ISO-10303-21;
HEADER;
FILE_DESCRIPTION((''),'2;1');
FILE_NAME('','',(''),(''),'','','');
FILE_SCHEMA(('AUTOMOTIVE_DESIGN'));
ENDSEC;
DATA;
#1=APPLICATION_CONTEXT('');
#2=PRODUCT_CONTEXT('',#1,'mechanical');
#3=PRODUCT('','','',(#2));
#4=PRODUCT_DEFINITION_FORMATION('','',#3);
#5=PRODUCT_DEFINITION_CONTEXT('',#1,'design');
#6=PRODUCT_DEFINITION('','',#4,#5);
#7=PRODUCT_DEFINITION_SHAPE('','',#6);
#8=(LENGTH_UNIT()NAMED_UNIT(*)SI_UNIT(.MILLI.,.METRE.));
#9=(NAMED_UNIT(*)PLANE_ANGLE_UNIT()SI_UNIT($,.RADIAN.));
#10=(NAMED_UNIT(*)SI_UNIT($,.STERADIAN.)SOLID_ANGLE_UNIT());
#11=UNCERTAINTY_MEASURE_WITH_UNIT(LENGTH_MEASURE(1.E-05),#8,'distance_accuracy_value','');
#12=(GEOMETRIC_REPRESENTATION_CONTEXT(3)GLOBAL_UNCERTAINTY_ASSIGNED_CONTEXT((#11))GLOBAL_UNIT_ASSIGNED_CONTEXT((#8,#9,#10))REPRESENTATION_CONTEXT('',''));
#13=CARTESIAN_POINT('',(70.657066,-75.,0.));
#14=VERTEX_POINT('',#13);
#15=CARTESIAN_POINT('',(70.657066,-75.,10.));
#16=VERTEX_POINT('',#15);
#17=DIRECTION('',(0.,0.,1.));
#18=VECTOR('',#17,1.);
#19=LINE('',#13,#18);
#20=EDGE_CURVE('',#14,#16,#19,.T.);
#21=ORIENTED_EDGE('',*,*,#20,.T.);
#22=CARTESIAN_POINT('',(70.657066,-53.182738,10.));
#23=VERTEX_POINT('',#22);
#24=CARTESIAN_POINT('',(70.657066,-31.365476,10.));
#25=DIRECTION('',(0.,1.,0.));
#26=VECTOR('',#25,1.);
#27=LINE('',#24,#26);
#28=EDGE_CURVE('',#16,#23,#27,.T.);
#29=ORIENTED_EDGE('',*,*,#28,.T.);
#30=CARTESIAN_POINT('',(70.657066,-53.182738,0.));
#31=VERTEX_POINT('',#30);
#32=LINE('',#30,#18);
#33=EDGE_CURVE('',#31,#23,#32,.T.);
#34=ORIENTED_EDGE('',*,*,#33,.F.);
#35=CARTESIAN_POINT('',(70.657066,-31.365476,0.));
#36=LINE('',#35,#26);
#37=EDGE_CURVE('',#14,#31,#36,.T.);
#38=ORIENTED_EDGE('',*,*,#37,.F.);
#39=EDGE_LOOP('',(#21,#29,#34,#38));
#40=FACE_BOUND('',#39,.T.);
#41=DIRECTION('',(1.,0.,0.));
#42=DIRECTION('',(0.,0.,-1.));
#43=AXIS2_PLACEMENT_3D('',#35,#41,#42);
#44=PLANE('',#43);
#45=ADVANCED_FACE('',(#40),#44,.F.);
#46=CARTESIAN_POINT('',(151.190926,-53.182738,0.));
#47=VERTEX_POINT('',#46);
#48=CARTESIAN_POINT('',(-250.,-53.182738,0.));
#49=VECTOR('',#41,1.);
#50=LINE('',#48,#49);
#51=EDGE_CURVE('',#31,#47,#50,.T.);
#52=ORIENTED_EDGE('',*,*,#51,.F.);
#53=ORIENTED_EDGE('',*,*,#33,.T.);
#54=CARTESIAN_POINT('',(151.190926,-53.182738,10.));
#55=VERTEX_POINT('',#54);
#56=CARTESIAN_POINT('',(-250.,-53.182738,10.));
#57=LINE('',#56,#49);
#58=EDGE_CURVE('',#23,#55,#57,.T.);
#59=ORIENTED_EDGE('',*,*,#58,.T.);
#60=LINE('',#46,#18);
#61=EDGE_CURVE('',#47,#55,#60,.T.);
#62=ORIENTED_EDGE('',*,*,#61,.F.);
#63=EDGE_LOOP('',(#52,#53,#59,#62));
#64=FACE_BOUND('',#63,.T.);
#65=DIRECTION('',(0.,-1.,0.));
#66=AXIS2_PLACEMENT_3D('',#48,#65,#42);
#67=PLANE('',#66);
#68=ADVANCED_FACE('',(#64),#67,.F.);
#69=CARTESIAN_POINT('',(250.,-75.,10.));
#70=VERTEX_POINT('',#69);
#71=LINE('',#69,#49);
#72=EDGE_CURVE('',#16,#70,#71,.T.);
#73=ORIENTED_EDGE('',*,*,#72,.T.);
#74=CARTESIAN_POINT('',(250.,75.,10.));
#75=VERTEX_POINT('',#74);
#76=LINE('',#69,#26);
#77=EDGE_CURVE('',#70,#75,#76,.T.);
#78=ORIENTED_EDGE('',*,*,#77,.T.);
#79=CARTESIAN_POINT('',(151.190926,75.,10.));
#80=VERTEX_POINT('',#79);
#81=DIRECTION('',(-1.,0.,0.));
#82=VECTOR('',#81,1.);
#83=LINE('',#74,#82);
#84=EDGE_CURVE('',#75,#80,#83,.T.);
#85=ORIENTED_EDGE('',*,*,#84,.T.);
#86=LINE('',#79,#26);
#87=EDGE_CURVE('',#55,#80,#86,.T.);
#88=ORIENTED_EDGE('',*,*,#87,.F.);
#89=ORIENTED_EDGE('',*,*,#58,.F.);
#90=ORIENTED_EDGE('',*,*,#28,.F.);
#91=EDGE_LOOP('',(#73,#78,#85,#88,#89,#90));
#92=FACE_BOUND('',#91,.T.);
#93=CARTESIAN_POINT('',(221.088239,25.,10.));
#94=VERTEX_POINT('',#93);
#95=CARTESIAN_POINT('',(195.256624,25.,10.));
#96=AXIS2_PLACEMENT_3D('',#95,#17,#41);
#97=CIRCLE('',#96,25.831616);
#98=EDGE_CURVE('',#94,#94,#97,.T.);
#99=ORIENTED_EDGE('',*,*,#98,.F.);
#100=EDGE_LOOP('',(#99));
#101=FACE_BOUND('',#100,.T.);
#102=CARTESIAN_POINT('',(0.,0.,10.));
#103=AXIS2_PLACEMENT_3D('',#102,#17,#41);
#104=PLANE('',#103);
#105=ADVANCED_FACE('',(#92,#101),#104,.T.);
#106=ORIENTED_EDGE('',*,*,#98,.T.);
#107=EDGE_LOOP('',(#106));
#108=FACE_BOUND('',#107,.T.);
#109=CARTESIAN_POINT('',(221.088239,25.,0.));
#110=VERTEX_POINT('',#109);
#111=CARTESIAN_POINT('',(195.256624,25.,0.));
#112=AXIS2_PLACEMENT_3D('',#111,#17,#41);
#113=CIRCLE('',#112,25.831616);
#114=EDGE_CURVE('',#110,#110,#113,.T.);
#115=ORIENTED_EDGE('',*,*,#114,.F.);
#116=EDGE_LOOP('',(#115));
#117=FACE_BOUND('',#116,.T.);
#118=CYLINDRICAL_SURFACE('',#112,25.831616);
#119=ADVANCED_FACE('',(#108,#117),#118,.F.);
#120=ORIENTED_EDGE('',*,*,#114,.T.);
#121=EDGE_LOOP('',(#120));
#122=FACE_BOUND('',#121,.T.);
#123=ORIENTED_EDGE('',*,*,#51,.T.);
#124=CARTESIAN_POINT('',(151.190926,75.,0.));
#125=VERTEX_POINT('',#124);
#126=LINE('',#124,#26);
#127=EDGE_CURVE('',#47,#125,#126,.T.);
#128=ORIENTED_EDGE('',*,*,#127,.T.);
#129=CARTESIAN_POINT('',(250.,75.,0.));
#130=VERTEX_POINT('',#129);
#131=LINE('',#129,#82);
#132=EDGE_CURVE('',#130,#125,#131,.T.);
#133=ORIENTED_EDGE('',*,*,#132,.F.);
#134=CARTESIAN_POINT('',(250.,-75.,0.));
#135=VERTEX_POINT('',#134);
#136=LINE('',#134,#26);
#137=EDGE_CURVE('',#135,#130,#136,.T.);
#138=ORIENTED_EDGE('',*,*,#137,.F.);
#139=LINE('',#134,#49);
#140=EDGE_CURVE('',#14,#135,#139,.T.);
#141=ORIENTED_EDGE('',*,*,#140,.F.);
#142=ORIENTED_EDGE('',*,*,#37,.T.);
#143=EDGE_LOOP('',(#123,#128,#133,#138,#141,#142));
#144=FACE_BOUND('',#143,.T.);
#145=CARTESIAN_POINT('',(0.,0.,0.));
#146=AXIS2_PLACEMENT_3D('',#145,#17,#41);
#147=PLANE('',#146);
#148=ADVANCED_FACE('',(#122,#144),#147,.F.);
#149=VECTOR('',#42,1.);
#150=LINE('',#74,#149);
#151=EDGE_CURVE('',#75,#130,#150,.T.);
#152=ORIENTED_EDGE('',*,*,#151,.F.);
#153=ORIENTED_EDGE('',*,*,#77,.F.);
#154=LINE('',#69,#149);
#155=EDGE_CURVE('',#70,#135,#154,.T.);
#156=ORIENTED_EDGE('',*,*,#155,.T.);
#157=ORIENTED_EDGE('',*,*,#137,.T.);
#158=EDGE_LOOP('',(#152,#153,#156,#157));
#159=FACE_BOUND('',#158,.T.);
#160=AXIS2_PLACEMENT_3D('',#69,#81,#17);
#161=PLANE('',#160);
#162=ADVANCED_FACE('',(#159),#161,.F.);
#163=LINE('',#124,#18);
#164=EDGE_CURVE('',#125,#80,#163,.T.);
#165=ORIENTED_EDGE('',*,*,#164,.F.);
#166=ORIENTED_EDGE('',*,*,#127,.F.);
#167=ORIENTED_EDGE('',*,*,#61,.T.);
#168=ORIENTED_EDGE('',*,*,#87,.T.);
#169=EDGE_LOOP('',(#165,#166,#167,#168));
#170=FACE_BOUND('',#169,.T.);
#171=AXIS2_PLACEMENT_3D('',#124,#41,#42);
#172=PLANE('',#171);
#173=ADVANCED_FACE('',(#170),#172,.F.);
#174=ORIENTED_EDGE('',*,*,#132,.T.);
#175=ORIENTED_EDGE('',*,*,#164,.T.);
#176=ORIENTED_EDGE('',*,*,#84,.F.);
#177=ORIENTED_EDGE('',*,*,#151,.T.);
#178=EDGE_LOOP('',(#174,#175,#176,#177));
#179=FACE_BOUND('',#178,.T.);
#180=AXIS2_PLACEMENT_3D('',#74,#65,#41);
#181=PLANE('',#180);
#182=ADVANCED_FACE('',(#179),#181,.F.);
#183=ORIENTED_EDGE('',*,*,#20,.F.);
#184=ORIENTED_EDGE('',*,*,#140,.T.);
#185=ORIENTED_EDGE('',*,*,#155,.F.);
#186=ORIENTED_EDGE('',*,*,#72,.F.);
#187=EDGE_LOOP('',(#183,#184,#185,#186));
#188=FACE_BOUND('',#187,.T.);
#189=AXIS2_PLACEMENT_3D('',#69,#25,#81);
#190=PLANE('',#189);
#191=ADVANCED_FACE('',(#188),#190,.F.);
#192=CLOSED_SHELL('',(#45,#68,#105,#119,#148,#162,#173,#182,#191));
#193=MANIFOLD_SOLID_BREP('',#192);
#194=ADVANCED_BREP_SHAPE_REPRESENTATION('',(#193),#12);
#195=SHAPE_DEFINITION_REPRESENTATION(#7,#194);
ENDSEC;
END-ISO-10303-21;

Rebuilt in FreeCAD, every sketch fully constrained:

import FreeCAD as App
import Part
import Sketcher
Q = App.Units.Quantity

doc = App.newDocument("Part")
params = doc.addObject("Spreadsheet::Sheet", "Params")
for row, (alias, value) in enumerate([
    ("sketch1_width", "500 mm"),
    ("sketch1_height", "150 mm"),
    ("pad1_length", "10 mm"),
    ("pocket1_length", "10 mm"),
    ("pocket2_length", "10 mm"),
    ("pocket3_length", "10 mm"),
], start=1):
    params.set(f"A{row}", alias)
    params.set(f"B{row}", "=" + value)
    params.setAlias(f"B{row}", alias)

body = doc.addObject("PartDesign::Body", "Body")

sketch1 = body.newObject("Sketcher::SketchObject", "Sketch")
sketch1.AttachmentSupport = (doc.getObject("XY_Plane"), [""])
sketch1.MapMode = "FlatFace"
sketch1.addGeometry(Part.LineSegment(App.Vector(-250, 75, 0), App.Vector(-250, -75, 0)), False)
sketch1.addGeometry(Part.LineSegment(App.Vector(-250, -75, 0), App.Vector(250, -75, 0)), False)
sketch1.addGeometry(Part.LineSegment(App.Vector(250, -75, 0), App.Vector(250, 75, 0)), False)
sketch1.addGeometry(Part.LineSegment(App.Vector(250, 75, 0), App.Vector(-250, 75, 0)), False)
sketch1.addConstraint(Sketcher.Constraint("Coincident", 0, 2, 1, 1))
sketch1.addConstraint(Sketcher.Constraint("Coincident", 1, 2, 2, 1))
sketch1.addConstraint(Sketcher.Constraint("Coincident", 2, 2, 3, 1))
sketch1.addConstraint(Sketcher.Constraint("Coincident", 3, 2, 0, 1))
sketch1.addConstraint(Sketcher.Constraint("Vertical", 0))
sketch1.addConstraint(Sketcher.Constraint("Horizontal", 1))
sketch1.addConstraint(Sketcher.Constraint("Vertical", 2))
sketch1.addConstraint(Sketcher.Constraint("Horizontal", 3))
sketch1.addConstraint(Sketcher.Constraint("Symmetric", 0, 2, 2, 2, -1, 1))
sketch1.addConstraint(Sketcher.Constraint("DistanceX", 1, 1, 1, 2, Q("500 mm")))
sketch1.addConstraint(Sketcher.Constraint("DistanceY", 0, 2, 0, 1, Q("150 mm")))
sketch1.setExpression("Constraints[9]", "Params.sketch1_width")
sketch1.setExpression("Constraints[10]", "Params.sketch1_height")
pad1 = body.newObject("PartDesign::Pad", "Pad")
pad1.Profile = sketch1
pad1.setExpression("Length", "Params.pad1_length")

sketch2 = body.newObject("Sketcher::SketchObject", "Sketch001")
sketch2.AttachmentSupport = (doc.getObject("XY_Plane"), [""])
sketch2.MapMode = "FlatFace"
sketch2.AttachmentOffset = App.Placement(App.Vector(0, 0, 10), App.Rotation())
sketch2.addGeometry(Part.Circle(App.Vector(195, 25, 0), App.Vector(0, 0, 1), 26), False)
sketch2.addConstraint(Sketcher.Constraint("DistanceY", -1, 1, 0, 3, Q("25 mm")))
sketch2.addConstraint(Sketcher.Constraint("Diameter", 0, Q("51.663231 mm")))
sketch2.addConstraint(Sketcher.Constraint("DistanceX", -1, 1, 0, 3, Q("195.256624 mm")))
pocket1 = body.newObject("PartDesign::Pocket", "Pocket")
pocket1.Profile = sketch2
pocket1.setExpression("Length", "Params.pocket1_length")

sketch3 = body.newObject("Sketcher::SketchObject", "Sketch002")
sketch3.AttachmentSupport = (doc.getObject("XY_Plane"), [""])
sketch3.MapMode = "FlatFace"
sketch3.AttachmentOffset = App.Placement(App.Vector(0, 0, 10), App.Rotation())
sketch3.addGeometry(Part.LineSegment(App.Vector(-250, 75, 0), App.Vector(-250, -53, 0)), False)
sketch3.addGeometry(Part.LineSegment(App.Vector(-250, -53, 0), App.Vector(151, -53, 0)), False)
sketch3.addGeometry(Part.LineSegment(App.Vector(151, -53, 0), App.Vector(151, 75, 0)), False)
sketch3.addGeometry(Part.LineSegment(App.Vector(151, 75, 0), App.Vector(-250, 75, 0)), False)
sketch3.addConstraint(Sketcher.Constraint("Coincident", 0, 2, 1, 1))
sketch3.addConstraint(Sketcher.Constraint("Coincident", 1, 2, 2, 1))
sketch3.addConstraint(Sketcher.Constraint("Coincident", 2, 2, 3, 1))
sketch3.addConstraint(Sketcher.Constraint("Coincident", 3, 2, 0, 1))
sketch3.addConstraint(Sketcher.Constraint("Vertical", 0))
sketch3.addConstraint(Sketcher.Constraint("Horizontal", 1))
sketch3.addConstraint(Sketcher.Constraint("Vertical", 2))
sketch3.addConstraint(Sketcher.Constraint("Horizontal", 3))
sketch3.addConstraint(Sketcher.Constraint("DistanceX", 0, 2, -1, 1, Q("250 mm")))
sketch3.addConstraint(Sketcher.Constraint("DistanceY", -1, 1, 2, 2, Q("75 mm")))
sketch3.addConstraint(Sketcher.Constraint("DistanceX", 1, 1, 1, 2, Q("401.190926 mm")))
sketch3.addConstraint(Sketcher.Constraint("DistanceY", 0, 2, 0, 1, Q("128.182738 mm")))
pocket2 = body.newObject("PartDesign::Pocket", "Pocket001")
pocket2.Profile = sketch3
pocket2.setExpression("Length", "Params.pocket2_length")

sketch4 = body.newObject("Sketcher::SketchObject", "Sketch003")
sketch4.AttachmentSupport = (doc.getObject("XY_Plane"), [""])
sketch4.MapMode = "FlatFace"
sketch4.AttachmentOffset = App.Placement(App.Vector(0, 0, 10), App.Rotation())
sketch4.addGeometry(Part.LineSegment(App.Vector(-571, -31, 0), App.Vector(-571, -75, 0)), False)
sketch4.addGeometry(Part.LineSegment(App.Vector(-571, -75, 0), App.Vector(71, -75, 0)), False)
sketch4.addGeometry(Part.LineSegment(App.Vector(71, -75, 0), App.Vector(71, -31, 0)), False)
sketch4.addGeometry(Part.LineSegment(App.Vector(71, -31, 0), App.Vector(-571, -31, 0)), False)
sketch4.addConstraint(Sketcher.Constraint("Coincident", 0, 2, 1, 1))
sketch4.addConstraint(Sketcher.Constraint("Coincident", 1, 2, 2, 1))
sketch4.addConstraint(Sketcher.Constraint("Coincident", 2, 2, 3, 1))
sketch4.addConstraint(Sketcher.Constraint("Coincident", 3, 2, 0, 1))
sketch4.addConstraint(Sketcher.Constraint("Vertical", 0))
sketch4.addConstraint(Sketcher.Constraint("Horizontal", 1))
sketch4.addConstraint(Sketcher.Constraint("Vertical", 2))
sketch4.addConstraint(Sketcher.Constraint("Horizontal", 3))
sketch4.addConstraint(Sketcher.Constraint("DistanceY", 0, 2, -1, 1, Q("75 mm")))
sketch4.addConstraint(Sketcher.Constraint("DistanceX", 1, 1, 1, 2, Q("641.314132 mm")))
sketch4.addConstraint(Sketcher.Constraint("DistanceY", 0, 2, 0, 1, Q("43.634524 mm")))
sketch4.addConstraint(Sketcher.Constraint("DistanceX", 0, 2, -1, 1, Q("570.657066 mm")))
pocket3 = body.newObject("PartDesign::Pocket", "Pocket002")
pocket3.Profile = sketch4
pocket3.setExpression("Length", "Params.pocket3_length")

doc.recompute()
